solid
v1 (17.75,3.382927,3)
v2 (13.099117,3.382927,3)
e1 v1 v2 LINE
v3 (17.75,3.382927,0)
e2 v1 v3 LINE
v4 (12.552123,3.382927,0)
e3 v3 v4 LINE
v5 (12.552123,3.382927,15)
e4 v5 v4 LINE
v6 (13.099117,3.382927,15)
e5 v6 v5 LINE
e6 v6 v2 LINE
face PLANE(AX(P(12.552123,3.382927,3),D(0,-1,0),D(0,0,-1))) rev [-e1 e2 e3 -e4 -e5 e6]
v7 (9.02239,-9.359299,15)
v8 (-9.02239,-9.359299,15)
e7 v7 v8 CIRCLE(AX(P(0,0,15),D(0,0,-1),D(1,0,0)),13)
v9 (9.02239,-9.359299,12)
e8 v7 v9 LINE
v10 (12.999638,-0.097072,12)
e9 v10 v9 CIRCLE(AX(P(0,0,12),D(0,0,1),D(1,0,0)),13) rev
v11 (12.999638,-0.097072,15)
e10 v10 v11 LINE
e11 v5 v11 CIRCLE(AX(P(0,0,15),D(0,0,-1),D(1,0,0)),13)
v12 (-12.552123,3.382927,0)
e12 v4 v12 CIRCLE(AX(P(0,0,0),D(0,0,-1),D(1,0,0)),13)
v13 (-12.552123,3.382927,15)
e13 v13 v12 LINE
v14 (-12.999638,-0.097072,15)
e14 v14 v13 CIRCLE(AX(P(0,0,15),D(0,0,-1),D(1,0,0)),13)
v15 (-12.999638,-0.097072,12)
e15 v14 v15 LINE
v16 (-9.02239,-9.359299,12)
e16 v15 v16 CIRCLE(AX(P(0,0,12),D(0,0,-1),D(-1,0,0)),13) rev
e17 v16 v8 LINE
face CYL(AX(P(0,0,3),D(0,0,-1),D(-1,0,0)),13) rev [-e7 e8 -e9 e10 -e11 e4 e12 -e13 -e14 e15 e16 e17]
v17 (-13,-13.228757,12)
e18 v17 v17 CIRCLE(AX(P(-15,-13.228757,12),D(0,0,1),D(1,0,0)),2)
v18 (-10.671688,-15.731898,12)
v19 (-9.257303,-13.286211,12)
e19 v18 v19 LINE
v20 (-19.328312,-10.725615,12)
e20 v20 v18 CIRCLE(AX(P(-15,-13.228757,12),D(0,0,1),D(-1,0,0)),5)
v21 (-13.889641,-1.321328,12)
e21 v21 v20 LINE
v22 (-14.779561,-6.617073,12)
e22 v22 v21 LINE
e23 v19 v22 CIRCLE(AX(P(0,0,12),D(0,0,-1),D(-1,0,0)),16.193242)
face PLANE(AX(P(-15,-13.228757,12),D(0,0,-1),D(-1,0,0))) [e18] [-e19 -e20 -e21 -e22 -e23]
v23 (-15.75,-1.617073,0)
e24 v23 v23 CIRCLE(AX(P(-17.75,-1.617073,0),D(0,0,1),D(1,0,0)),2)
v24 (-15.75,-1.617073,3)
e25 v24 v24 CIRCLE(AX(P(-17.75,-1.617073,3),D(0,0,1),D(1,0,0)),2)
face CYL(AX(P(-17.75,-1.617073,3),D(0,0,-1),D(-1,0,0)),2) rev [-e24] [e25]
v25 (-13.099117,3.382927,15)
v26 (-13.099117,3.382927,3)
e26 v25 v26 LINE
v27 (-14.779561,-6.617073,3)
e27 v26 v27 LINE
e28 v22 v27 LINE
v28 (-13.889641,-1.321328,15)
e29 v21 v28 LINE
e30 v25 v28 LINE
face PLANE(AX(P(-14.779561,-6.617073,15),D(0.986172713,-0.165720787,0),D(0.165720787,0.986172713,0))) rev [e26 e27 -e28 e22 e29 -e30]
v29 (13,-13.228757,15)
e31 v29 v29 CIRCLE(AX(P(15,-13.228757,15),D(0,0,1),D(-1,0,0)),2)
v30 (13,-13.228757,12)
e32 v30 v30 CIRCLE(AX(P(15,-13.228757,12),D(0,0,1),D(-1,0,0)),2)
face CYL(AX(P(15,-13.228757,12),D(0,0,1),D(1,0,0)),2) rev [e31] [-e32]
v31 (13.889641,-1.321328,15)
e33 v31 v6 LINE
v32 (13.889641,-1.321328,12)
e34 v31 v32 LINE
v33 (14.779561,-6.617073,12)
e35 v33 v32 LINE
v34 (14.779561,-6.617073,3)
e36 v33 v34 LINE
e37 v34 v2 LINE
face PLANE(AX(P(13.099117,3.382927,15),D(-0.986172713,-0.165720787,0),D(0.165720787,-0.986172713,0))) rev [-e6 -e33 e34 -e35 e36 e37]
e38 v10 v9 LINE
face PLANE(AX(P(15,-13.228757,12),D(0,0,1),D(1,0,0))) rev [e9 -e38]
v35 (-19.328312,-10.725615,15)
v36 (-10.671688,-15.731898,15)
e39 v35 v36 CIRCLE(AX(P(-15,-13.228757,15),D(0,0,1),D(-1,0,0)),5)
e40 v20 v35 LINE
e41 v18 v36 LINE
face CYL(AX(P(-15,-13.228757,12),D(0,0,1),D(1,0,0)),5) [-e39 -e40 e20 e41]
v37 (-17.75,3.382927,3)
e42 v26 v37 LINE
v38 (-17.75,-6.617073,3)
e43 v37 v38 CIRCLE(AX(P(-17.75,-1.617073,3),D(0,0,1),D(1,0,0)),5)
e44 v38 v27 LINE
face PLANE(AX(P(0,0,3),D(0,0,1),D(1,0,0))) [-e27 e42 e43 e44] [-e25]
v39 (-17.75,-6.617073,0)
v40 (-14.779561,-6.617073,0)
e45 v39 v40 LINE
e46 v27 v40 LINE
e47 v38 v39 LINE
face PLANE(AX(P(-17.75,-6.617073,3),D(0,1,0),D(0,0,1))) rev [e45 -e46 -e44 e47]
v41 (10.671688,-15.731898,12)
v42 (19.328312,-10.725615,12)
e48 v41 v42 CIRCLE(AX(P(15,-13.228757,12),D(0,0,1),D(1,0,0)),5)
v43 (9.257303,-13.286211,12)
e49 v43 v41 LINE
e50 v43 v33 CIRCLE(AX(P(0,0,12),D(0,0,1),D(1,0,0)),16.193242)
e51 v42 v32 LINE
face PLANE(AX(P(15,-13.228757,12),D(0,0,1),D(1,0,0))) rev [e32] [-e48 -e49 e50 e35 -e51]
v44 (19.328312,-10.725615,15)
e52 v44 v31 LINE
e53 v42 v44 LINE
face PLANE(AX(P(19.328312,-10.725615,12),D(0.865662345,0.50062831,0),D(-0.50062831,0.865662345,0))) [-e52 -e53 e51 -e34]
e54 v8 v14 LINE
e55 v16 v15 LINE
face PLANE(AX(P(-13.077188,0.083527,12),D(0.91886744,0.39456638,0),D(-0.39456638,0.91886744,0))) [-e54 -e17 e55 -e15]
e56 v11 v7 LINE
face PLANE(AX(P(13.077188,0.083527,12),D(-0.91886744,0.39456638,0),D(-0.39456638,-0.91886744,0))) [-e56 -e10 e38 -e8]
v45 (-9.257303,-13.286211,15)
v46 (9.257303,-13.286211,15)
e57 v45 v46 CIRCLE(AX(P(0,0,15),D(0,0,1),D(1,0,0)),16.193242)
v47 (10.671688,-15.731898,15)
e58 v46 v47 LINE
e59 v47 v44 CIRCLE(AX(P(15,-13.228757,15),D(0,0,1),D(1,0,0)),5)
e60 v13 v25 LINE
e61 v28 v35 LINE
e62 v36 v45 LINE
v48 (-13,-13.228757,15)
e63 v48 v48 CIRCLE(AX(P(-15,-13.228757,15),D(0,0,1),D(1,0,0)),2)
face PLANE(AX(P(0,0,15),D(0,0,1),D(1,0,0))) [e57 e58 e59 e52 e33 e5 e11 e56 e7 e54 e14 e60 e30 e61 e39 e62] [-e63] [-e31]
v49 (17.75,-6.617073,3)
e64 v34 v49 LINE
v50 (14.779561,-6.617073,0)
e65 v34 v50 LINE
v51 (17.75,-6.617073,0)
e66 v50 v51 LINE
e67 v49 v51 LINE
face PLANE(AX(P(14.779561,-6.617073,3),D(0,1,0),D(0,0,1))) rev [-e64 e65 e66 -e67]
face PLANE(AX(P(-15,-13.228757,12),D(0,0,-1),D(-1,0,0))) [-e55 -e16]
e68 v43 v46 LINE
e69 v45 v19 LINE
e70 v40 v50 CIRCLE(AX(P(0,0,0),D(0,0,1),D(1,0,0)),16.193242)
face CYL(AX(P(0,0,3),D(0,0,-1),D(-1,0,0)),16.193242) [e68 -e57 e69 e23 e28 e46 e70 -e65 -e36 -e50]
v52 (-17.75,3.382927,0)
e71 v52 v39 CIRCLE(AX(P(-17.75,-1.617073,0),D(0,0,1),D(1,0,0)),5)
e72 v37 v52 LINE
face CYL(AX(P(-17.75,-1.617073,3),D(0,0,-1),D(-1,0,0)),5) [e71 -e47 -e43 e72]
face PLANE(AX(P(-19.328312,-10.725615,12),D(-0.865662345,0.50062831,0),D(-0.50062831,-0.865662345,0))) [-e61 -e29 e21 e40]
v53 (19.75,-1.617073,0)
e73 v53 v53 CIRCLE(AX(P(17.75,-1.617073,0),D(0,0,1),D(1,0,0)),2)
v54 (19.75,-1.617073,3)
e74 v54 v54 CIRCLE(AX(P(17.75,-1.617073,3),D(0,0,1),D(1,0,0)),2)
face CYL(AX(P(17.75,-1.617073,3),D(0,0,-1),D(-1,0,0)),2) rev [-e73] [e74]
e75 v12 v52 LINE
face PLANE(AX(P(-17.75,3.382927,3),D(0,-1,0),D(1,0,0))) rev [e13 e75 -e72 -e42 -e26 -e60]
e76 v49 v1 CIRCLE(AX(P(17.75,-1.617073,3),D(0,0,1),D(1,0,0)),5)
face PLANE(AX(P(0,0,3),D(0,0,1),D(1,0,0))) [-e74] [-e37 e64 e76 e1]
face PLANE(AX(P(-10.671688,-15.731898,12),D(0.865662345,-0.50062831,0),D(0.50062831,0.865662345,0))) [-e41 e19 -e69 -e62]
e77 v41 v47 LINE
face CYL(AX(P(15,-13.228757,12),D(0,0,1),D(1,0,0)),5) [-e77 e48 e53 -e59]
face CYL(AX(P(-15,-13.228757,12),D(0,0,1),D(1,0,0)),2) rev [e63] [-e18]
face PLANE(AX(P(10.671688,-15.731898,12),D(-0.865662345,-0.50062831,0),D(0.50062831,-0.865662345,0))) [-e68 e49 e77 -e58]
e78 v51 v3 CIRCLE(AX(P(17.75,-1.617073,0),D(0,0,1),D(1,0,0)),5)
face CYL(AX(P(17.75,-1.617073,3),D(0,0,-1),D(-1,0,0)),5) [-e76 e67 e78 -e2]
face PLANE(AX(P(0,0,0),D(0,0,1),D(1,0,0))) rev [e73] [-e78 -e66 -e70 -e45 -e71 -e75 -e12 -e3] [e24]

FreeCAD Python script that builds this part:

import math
import FreeCAD as App
import Part
import Sketcher
Q = App.Units.Quantity

doc = App.newDocument("Part")
body = doc.addObject("PartDesign::Body", "Body")

# Sketch on XY plane
sketch1 = body.newObject("Sketcher::SketchObject", "Sketch")
sketch1.AttachmentSupport = (doc.getObject("XY_Plane"), [""])
sketch1.MapMode = "FlatFace"
sketch1.addGeometry(Part.LineSegment(App.Vector(-12.6, 3.4, 0), App.Vector(-17.8, 3.4, 0)), False)
sketch1.addGeometry(Part.ArcOfCircle(Part.Circle(App.Vector(-17.8, -1.6, 0), App.Vector(0, 0, 1), 5), math.radians(90), math.radians(270)), False)
sketch1.addGeometry(Part.LineSegment(App.Vector(-17.8, -6.6, 0), App.Vector(-14.8, -6.6, 0)), False)
sketch1.addGeometry(Part.ArcOfCircle(Part.Circle(App.Vector(0, 0, 0), App.Vector(0, 0, 1), 16.2), math.radians(-156), math.radians(-24)), False)
sketch1.addGeometry(Part.LineSegment(App.Vector(14.8, -6.6, 0), App.Vector(17.8, -6.6, 0)), False)
sketch1.addGeometry(Part.ArcOfCircle(Part.Circle(App.Vector(17.8, -1.6, 0), App.Vector(0, 0, 1), 5), math.radians(-90), math.radians(90)), False)
sketch1.addGeometry(Part.LineSegment(App.Vector(17.8, 3.4, 0), App.Vector(12.6, 3.4, 0)), False)
sketch1.addGeometry(Part.ArcOfCircle(Part.Circle(App.Vector(0, 0, 0), App.Vector(0, 0, 1), 13), math.radians(165), math.radians(375)), False)
sketch1.addGeometry(Part.Circle(App.Vector(17.8, -1.6, 0), App.Vector(0, 0, 1), 2), False)
sketch1.addGeometry(Part.Circle(App.Vector(-17.8, -1.6, 0), App.Vector(0, 0, 1), 2), False)
sketch1.addConstraint(Sketcher.Constraint("Tangent", 0, 2, 1, 1))
sketch1.addConstraint(Sketcher.Constraint("Tangent", 1, 2, 2, 1))
sketch1.addConstraint(Sketcher.Constraint("Coincident", 2, 2, 3, 1))
sketch1.addConstraint(Sketcher.Constraint("Coincident", 3, 2, 4, 1))
sketch1.addConstraint(Sketcher.Constraint("Tangent", 4, 2, 5, 1))
sketch1.addConstraint(Sketcher.Constraint("Tangent", 5, 2, 6, 1))
sketch1.addConstraint(Sketcher.Constraint("Coincident", 6, 2, 7, 2))
sketch1.addConstraint(Sketcher.Constraint("Coincident", 7, 1, 0, 1))
sketch1.addConstraint(Sketcher.Constraint("Horizontal", 0))
sketch1.addConstraint(Sketcher.Constraint("Horizontal", 2))
sketch1.addConstraint(Sketcher.Constraint("Horizontal", 4))
sketch1.addConstraint(Sketcher.Constraint("Horizontal", 6))
sketch1.addConstraint(Sketcher.Constraint("Coincident", 3, 3, -1, 1))
sketch1.addConstraint(Sketcher.Constraint("Coincident", 7, 3, -1, 1))
sketch1.addConstraint(Sketcher.Constraint("Coincident", 8, 3, 5, 3))
sketch1.addConstraint(Sketcher.Constraint("Coincident", 9, 3, 1, 3))
sketch1.addConstraint(Sketcher.Constraint("Equal", 1, 5))
sketch1.addConstraint(Sketcher.Constraint("Equal", 8, 9))
sketch1.addConstraint(Sketcher.Constraint("Symmetric", 1, 3, 5, 3, -2))
sketch1.addConstraint(Sketcher.Constraint("Diameter", 8, Q("4 mm")))
sketch1.addConstraint(Sketcher.Constraint("Radius", 1, Q("5 mm")))
sketch1.addConstraint(Sketcher.Constraint("Radius", 7, Q("13 mm")))
sketch1.addConstraint(Sketcher.Constraint("DistanceX", 1, 3, 5, 3, Q("35.5 mm")))
sketch1.addConstraint(Sketcher.Constraint("Radius", 3, Q("16.193242 mm")))
sketch1.addConstraint(Sketcher.Constraint("DistanceX", 2, 1, 2, 2, Q("2.970439 mm")))
pad1 = body.newObject("PartDesign::Pad", "Pad")
pad1.Profile = sketch1
pad1.Length = 3

# Sketch on XY plane
sketch2 = body.newObject("Sketcher::SketchObject", "Sketch001")
sketch2.AttachmentSupport = (doc.getObject("XY_Plane"), [""])
sketch2.MapMode = "FlatFace"
sketch2.AttachmentOffset = App.Placement(App.Vector(0, 0, 3), App.Rotation())
sketch2.addGeometry(Part.LineSegment(App.Vector(14.8, -6.6, 0), App.Vector(13.1, 3.4, 0)), False)
sketch2.addGeometry(Part.LineSegment(App.Vector(13.1, 3.4, 0), App.Vector(12.6, 3.4, 0)), False)
sketch2.addGeometry(Part.ArcOfCircle(Part.Circle(App.Vector(0, 0, 0), App.Vector(0, 0, 1), 13), math.radians(165), math.radians(375)), False)
sketch2.addGeometry(Part.LineSegment(App.Vector(-12.6, 3.4, 0), App.Vector(-13.1, 3.4, 0)), False)
sketch2.addGeometry(Part.LineSegment(App.Vector(-13.1, 3.4, 0), App.Vector(-14.8, -6.6, 0)), False)
sketch2.addGeometry(Part.ArcOfCircle(Part.Circle(App.Vector(0, 0, 0), App.Vector(0, 0, 1), 16.2), math.radians(-156), math.radians(-24)), False)
sketch2.addConstraint(Sketcher.Constraint("Coincident", 0, 2, 1, 1))
sketch2.addConstraint(Sketcher.Constraint("Coincident", 1, 2, 2, 2))
sketch2.addConstraint(Sketcher.Constraint("Coincident", 2, 1, 3, 1))
sketch2.addConstraint(Sketcher.Constraint("Coincident", 3, 2, 4, 1))
sketch2.addConstraint(Sketcher.Constraint("Coincident", 4, 2, 5, 1))
sketch2.addConstraint(Sketcher.Constraint("Coincident", 5, 2, 0, 1))
sketch2.addConstraint(Sketcher.Constraint("Horizontal", 1))
sketch2.addConstraint(Sketcher.Constraint("Horizontal", 3))
sketch2.addConstraint(Sketcher.Constraint("Coincident", 2, 3, -1, 1))
sketch2.addConstraint(Sketcher.Constraint("Coincident", 5, 3, -1, 1))
sketch2.addConstraint(Sketcher.Constraint("Symmetric", 0, 2, 3, 2, -2))
sketch2.addConstraint(Sketcher.Constraint("Horizontal", 4, 2, 5, 2))
sketch2.addConstraint(Sketcher.Constraint("Radius", 2, Q("13 mm")))
sketch2.addConstraint(Sketcher.Constraint("DistanceY", 4, 2, 3, 2, Q("10 mm")))
sketch2.addConstraint(Sketcher.Constraint("Radius", 5, Q("16.193242 mm")))
sketch2.addConstraint(Sketcher.Constraint("Distance", 0, Q("10.140212 mm")))
sketch2.addConstraint(Sketcher.Constraint("DistanceX", 1, 2, 1, 1, Q("0.546994 mm")))
pad2 = body.newObject("PartDesign::Pad", "Pad001")
pad2.Profile = sketch2
pad2.Length = 12

# Sketch on XY plane
sketch3 = body.newObject("Sketcher::SketchObject", "Sketch002")
sketch3.AttachmentSupport = (doc.getObject("XY_Plane"), [""])
sketch3.MapMode = "FlatFace"
sketch3.AttachmentOffset = App.Placement(App.Vector(0, 0, 15), App.Rotation())
sketch3.addGeometry(Part.LineSegment(App.Vector(13.1, 0.1, 0), App.Vector(8.2, -11.4, 0)), False)
sketch3.addGeometry(Part.LineSegment(App.Vector(8.2, -11.4, 0), App.Vector(10.7, -15.7, 0)), False)
sketch3.addGeometry(Part.ArcOfCircle(Part.Circle(App.Vector(15, -13.2, 0), App.Vector(0, 0, 1), 5), math.radians(-150), math.radians(30)), False)
sketch3.addGeometry(Part.LineSegment(App.Vector(19.3, -10.7, 0), App.Vector(13.1, 0.1, 0)), False)
sketch3.addGeometry(Part.Circle(App.Vector(15, -13.2, 0), App.Vector(0, 0, 1), 2), False)
sketch3.addGeometry(Part.LineSegment(App.Vector(-10.7, -15.7, 0), App.Vector(-8.2, -11.4, 0)), False)
sketch3.addGeometry(Part.LineSegment(App.Vector(-8.2, -11.4, 0), App.Vector(-13.1, 0.1, 0)), False)
sketch3.addGeometry(Part.LineSegment(App.Vector(-13.1, 0.1, 0), App.Vector(-19.3, -10.7, 0)), False)
sketch3.addGeometry(Part.ArcOfCircle(Part.Circle(App.Vector(-15, -13.2, 0), App.Vector(0, 0, 1), 5), math.radians(150), math.radians(330)), False)
sketch3.addGeometry(Part.Circle(App.Vector(-15, -13.2, 0), App.Vector(0, 0, 1), 2), False)
sketch3.addConstraint(Sketcher.Constraint("Coincident", 0, 2, 1, 1))
sketch3.addConstraint(Sketcher.Constraint("Tangent", 1, 2, 2, 1))
sketch3.addConstraint(Sketcher.Constraint("Tangent", 2, 2, 3, 1))
sketch3.addConstraint(Sketcher.Constraint("Coincident", 3, 2, 0, 1))
sketch3.addConstraint(Sketcher.Constraint("Coincident", 5, 2, 6, 1))
sketch3.addConstraint(Sketcher.Constraint("Coincident", 6, 2, 7, 1))
sketch3.addConstraint(Sketcher.Constraint("Tangent", 7, 2, 8, 1))
sketch3.addConstraint(Sketcher.Constraint("Tangent", 8, 2, 5, 1))
sketch3.addConstraint(Sketcher.Constraint("Coincident", 4, 3, 2, 3))
sketch3.addConstraint(Sketcher.Constraint("Coincident", 9, 3, 8, 3))
sketch3.addConstraint(Sketcher.Constraint("Equal", 2, 8))
sketch3.addConstraint(Sketcher.Constraint("Equal", 4, 9))
sketch3.addConstraint(Sketcher.Constraint("Symmetric", 2, 3, 8, 3, -2))
sketch3.addConstraint(Sketcher.Constraint("Symmetric", 0, 2, 5, 2, -2))
sketch3.addConstraint(Sketcher.Constraint("Symmetric", 3, 2, 6, 2, -2))
sketch3.addConstraint(Sketcher.Constraint("Parallel", 1, 3))
sketch3.addConstraint(Sketcher.Constraint("Diameter", 4, Q("4 mm")))
sketch3.addConstraint(Sketcher.Constraint("Radius", 2, Q("5 mm")))
sketch3.addConstraint(Sketcher.Constraint("DistanceX", -1, 1, 2, 3, Q("15 mm")))
sketch3.addConstraint(Sketcher.Constraint("DistanceY", 1, 2, -1, 1, Q("15.731898 mm")))
sketch3.addConstraint(Sketcher.Constraint("DistanceX", 1, 2, 3, 2, Q("2.405499 mm")))
sketch3.addConstraint(Sketcher.Constraint("Distance", 0, Q("12.475481 mm")))
sketch3.addConstraint(Sketcher.Constraint("DistanceX", -1, 1, 1, 2, Q("10.671688 mm")))
pad3 = body.newObject("PartDesign::Pad", "Pad002")
pad3.Profile = sketch3
pad3.Length = 3
pad3.Reversed = True

doc.recompute()
